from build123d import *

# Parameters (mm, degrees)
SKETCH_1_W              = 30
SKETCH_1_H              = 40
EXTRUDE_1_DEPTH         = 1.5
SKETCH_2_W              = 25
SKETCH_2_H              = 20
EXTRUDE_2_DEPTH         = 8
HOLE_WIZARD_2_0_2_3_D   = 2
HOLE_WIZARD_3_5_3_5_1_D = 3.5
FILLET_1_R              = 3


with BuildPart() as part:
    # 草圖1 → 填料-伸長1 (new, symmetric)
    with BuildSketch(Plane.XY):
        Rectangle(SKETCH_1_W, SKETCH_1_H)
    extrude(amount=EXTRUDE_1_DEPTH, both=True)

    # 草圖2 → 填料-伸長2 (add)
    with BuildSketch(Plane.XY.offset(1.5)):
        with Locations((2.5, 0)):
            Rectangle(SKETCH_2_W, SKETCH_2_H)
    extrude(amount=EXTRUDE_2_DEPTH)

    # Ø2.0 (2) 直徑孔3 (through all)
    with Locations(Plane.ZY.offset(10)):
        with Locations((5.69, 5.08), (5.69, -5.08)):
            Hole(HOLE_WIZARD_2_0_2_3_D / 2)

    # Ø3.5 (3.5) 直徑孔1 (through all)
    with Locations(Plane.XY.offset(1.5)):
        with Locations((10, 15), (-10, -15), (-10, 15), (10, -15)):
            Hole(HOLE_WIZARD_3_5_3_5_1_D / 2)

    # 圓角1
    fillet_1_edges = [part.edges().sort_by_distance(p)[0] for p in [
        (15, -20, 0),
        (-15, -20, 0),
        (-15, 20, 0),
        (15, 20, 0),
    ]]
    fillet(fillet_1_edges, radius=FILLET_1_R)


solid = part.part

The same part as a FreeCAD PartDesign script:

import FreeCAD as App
import Part
import Sketcher


def edges_at(feature, points):
    """Names of the edges that pass closest to the given points."""
    edges = feature.Shape.Edges
    near = lambda p: min(range(len(edges)), key=lambda i: edges[i].distToShape(Part.Vertex(*p))[0])
    return sorted({f"Edge{near(p) + 1}" for p in points})


def add_polygon(sketch, points):
    """Adds a closed chain of lines whose ends are joined by coincident constraints."""
    first, n = sketch.GeometryCount, len(points)
    for a, b in zip(points, points[1:] + points[:1]):
        sketch.addGeometry(Part.LineSegment(App.Vector(*a, 0), App.Vector(*b, 0)), False)
    for i in range(n):
        sketch.addConstraint(Sketcher.Constraint("Coincident", first + i, 2, first + (i + 1) % n, 1))

doc = App.newDocument("Part")
params = doc.addObject("Spreadsheet::Sheet", "Params")
for row, (alias, value) in enumerate([
    ("sketch1_width", "30 mm"),
    ("sketch1_height", "40 mm"),
    ("pad1_length", "3 mm"),
    ("sketch2_width", "25 mm"),
    ("sketch2_height", "20 mm"),
    ("pad2_length", "8 mm"),
    ("sketch3_diameter", "2 mm"),
    ("hole_diameter", "2 mm"),
    ("sketch4_diameter", "3.5 mm"),
    ("hole2_diameter", "3.5 mm"),
    ("fillet_radius", "3 mm"),
], start=1):
    params.set(f"A{row}", alias)
    params.set(f"B{row}", "=" + value)
    params.setAlias(f"B{row}", alias)

body = doc.addObject("PartDesign::Body", "Body")

# Sketch on XY plane
sketch1 = doc.addObject("Sketcher::SketchObject", "Sketch")
body.addObject(sketch1)
sketch1.AttachmentSupport = (doc.XY_Plane, [""])
sketch1.MapMode = "FlatFace"
add_polygon(sketch1, [(-15, 20), (-15, -20), (15, -20), (15, 20)])  # lines 0-3
sketch1.addConstraint(Sketcher.Constraint("Vertical", 0))
sketch1.addConstraint(Sketcher.Constraint("Horizontal", 1))
sketch1.addConstraint(Sketcher.Constraint("Vertical", 2))
sketch1.addConstraint(Sketcher.Constraint("Horizontal", 3))
sketch1.addConstraint(Sketcher.Constraint("Symmetric", 0, 2, 2, 2, -1, 1))
sketch1.addConstraint(Sketcher.Constraint("DistanceX", 1, 1, 1, 2, 30.0))
sketch1.addConstraint(Sketcher.Constraint("DistanceY", 0, 2, 0, 1, 40.0))
sketch1.setExpression("Constraints[9]", "Params.sketch1_width")
sketch1.setExpression("Constraints[10]", "Params.sketch1_height")
pad1 = doc.addObject("PartDesign::Pad", "Pad")
body.addObject(pad1)
pad1.Profile = sketch1
pad1.setExpression("Length", "Params.pad1_length")
pad1.Midplane = True

# Sketch on XY plane
sketch2 = doc.addObject("Sketcher::SketchObject", "Sketch001")
body.addObject(sketch2)
sketch2.AttachmentSupport = (doc.XY_Plane, [""])
sketch2.MapMode = "FlatFace"
sketch2.AttachmentOffset = App.Placement(App.Vector(0, 0, 1.5), App.Rotation())
add_polygon(sketch2, [(-10, 10), (-10, -10), (15, -10), (15, 10)])  # lines 0-3
sketch2.addConstraint(Sketcher.Constraint("Vertical", 0))
sketch2.addConstraint(Sketcher.Constraint("Horizontal", 1))
sketch2.addConstraint(Sketcher.Constraint("Vertical", 2))
sketch2.addConstraint(Sketcher.Constraint("Horizontal", 3))
sketch2.addConstraint(Sketcher.Constraint("DistanceX", 1, 1, 1, 2, 25.0))
sketch2.addConstraint(Sketcher.Constraint("DistanceY", 0, 2, 0, 1, 20.0))
sketch2.addConstraint(Sketcher.Constraint("DistanceX", 0, 2, -1, 1, 10.0))
sketch2.addConstraint(Sketcher.Constraint("DistanceY", 0, 2, -1, 1, 10.0))
sketch2.setExpression("Constraints[8]", "Params.sketch2_width")
sketch2.setExpression("Constraints[9]", "Params.sketch2_height")
pad2 = doc.addObject("PartDesign::Pad", "Pad001")
body.addObject(pad2)
pad2.Profile = sketch2
pad2.setExpression("Length", "Params.pad2_length")

# Sketch on YZ plane
sketch3 = doc.addObject("Sketcher::SketchObject", "Sketch002")
body.addObject(sketch3)
sketch3.AttachmentSupport = (doc.YZ_Plane, [""])
sketch3.MapMode = "FlatFace"
sketch3.AttachmentOffset = App.Placement(App.Vector(0, 0, -10), App.Rotation())
sketch3.addGeometry(Part.Circle(App.Vector(5.08, 5.69, 0), App.Vector(0, 0, 1), 1), False)
sketch3.addGeometry(Part.Circle(App.Vector(-5.08, 5.69, 0), App.Vector(0, 0, 1), 1), False)
sketch3.addConstraint(Sketcher.Constraint("Equal", 0, 1))
sketch3.addConstraint(Sketcher.Constraint("Symmetric", 0, 3, 1, 3, -2))
sketch3.addConstraint(Sketcher.Constraint("Diameter", 0, 2.0))
sketch3.addConstraint(Sketcher.Constraint("DistanceX", -1, 1, 0, 3, 5.08))
sketch3.addConstraint(Sketcher.Constraint("DistanceY", -1, 1, 0, 3, 5.69))
sketch3.setExpression("Constraints[2]", "Params.sketch3_diameter")
doc.recompute()
hole = doc.addObject("PartDesign::Hole", "Hole")
body.addObject(hole)
hole.Profile = sketch3
hole.ThreadType = "None"
hole.setExpression("Diameter", "Params.hole_diameter")
hole.DepthType = "ThroughAll"
hole.Reversed = True

# Sketch on XY plane
sketch4 = doc.addObject("Sketcher::SketchObject", "Sketch003")
body.addObject(sketch4)
sketch4.AttachmentSupport = (doc.XY_Plane, [""])
sketch4.MapMode = "FlatFace"
sketch4.AttachmentOffset = App.Placement(App.Vector(0, 0, 1.5), App.Rotation())
sketch4.addGeometry(Part.Circle(App.Vector(10, 15, 0), App.Vector(0, 0, 1), 1.75), False)
sketch4.addGeometry(Part.Circle(App.Vector(-10, -15, 0), App.Vector(0, 0, 1), 1.75), False)
sketch4.addGeometry(Part.Circle(App.Vector(-10, 15, 0), App.Vector(0, 0, 1), 1.75), False)
sketch4.addGeometry(Part.Circle(App.Vector(10, -15, 0), App.Vector(0, 0, 1), 1.75), False)
sketch4.addConstraint(Sketcher.Constraint("Equal", 0, 1))
sketch4.addConstraint(Sketcher.Constraint("Equal", 1, 2))
sketch4.addConstraint(Sketcher.Constraint("Equal", 2, 3))
sketch4.addConstraint(Sketcher.Constraint("Symmetric", 0, 3, 1, 3, -1, 1))
sketch4.addConstraint(Sketcher.Constraint("Symmetric", 2, 3, 3, 3, -1, 1))
sketch4.addConstraint(Sketcher.Constraint("Symmetric", 0, 3, 2, 3, -2))
sketch4.addConstraint(Sketcher.Constraint("Diameter", 0, 3.5))
sketch4.addConstraint(Sketcher.Constraint("DistanceX", -1, 1, 0, 3, 10.0))
sketch4.addConstraint(Sketcher.Constraint("DistanceY", -1, 1, 0, 3, 15.0))
sketch4.setExpression("Constraints[6]", "Params.sketch4_diameter")
doc.recompute()
hole2 = doc.addObject("PartDesign::Hole", "Hole001")
body.addObject(hole2)
hole2.Profile = sketch4
hole2.ThreadType = "None"
hole2.setExpression("Diameter", "Params.hole2_diameter")
hole2.DepthType = "ThroughAll"
doc.recompute()

fillet = doc.addObject("PartDesign::Fillet", "Fillet")
body.addObject(fillet)
fillet.Base = (hole2, edges_at(hole2, [
    (15, -20, 0),
    (-15, -20, 0),
    (-15, 20, 0),
    (15, 20, 0),
]))
fillet.setExpression("Radius", "Params.fillet_radius")

doc.recompute()
